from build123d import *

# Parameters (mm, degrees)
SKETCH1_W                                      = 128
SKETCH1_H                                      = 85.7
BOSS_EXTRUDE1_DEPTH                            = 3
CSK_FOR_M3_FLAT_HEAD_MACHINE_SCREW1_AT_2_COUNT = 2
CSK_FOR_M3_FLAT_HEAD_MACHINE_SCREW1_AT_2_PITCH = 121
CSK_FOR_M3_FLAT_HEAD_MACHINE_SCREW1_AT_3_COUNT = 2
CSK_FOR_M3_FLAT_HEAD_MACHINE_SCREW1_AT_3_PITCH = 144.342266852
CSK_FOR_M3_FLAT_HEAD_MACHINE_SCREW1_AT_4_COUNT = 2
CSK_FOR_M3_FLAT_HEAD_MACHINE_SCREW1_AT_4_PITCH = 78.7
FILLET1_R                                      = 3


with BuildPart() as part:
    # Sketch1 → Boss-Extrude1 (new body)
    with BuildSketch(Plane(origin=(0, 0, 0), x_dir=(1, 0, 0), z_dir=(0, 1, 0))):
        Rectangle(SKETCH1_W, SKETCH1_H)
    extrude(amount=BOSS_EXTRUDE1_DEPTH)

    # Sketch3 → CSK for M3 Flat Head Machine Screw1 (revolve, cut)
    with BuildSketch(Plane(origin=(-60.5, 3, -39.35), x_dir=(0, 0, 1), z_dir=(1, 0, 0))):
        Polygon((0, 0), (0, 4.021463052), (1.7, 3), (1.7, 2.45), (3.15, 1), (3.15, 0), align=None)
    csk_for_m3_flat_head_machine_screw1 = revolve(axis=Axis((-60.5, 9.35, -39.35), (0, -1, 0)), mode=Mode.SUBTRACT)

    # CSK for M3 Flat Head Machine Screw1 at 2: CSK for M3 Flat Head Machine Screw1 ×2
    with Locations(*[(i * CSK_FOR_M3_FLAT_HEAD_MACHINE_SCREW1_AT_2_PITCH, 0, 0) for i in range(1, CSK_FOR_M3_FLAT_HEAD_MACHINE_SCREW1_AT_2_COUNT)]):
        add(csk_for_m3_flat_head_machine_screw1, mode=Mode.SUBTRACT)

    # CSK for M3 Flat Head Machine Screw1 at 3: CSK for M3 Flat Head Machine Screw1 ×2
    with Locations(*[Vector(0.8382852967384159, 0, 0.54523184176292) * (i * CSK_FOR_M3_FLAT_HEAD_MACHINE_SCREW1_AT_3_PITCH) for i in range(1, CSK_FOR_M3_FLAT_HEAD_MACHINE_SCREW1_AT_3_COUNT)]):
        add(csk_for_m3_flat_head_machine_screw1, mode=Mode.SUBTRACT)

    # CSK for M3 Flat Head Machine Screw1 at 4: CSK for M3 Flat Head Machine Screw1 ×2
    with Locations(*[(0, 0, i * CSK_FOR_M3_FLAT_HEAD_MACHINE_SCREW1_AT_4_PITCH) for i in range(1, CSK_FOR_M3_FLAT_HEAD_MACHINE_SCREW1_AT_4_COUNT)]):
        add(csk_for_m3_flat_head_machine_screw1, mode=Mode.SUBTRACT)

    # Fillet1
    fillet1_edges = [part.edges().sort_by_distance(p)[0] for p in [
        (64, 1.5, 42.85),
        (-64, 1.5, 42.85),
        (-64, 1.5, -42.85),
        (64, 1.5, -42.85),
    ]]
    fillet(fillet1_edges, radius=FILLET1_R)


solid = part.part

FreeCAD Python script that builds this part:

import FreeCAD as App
import Part
import Sketcher

V = App.Vector
Q = App.Units.Quantity


def edges_at(feature, points):
    """Names of the edges that pass closest to the given points."""
    edges = feature.Shape.Edges
    near = lambda p: min(range(len(edges)), key=lambda i: edges[i].distToShape(Part.Vertex(*p))[0])
    return sorted({f"Edge{near(p) + 1}" for p in points})

doc = App.newDocument("Part")
params = doc.addObject("Spreadsheet::Sheet", "Params")
for row, (alias, value) in enumerate([
    ("sketch1_width", "128 mm"),
    ("sketch1_height", "85.7 mm"),
    ("pad1_length", "3 mm"),
    ("sketch2_width", "1 mm"),
    ("sketch2_width2", "0.55 mm"),
    ("sketch2_height", "3.15 mm"),
    ("groove_angle", "360 deg"),
    ("linearpattern_pitch", "121 mm"),
    ("linearpattern2_pitch", "144.342267 mm"),
    ("linearpattern3_pitch", "78.7 mm"),
    ("fillet_radius", "3 mm"),
], start=1):
    params.set(f"A{row}", alias)
    params.set(f"B{row}", "=" + value)
    params.setAlias(f"B{row}", alias)

body = doc.addObject("PartDesign::Body", "Body")

sketch1 = doc.addObject("Sketcher::SketchObject", "Sketch")
body.addObject(sketch1)
sketch1.AttachmentSupport = (doc.XZ_Plane, [""])
sketch1.MapMode = "FlatFace"
sketch1.addGeometry([
    Part.LineSegment(V(-64, -43, 0), V(-64, 43, 0)),
    Part.LineSegment(V(-64, 43, 0), V(64, 43, 0)),
    Part.LineSegment(V(64, 43, 0), V(64, -43, 0)),
    Part.LineSegment(V(64, -43, 0), V(-64, -43, 0)),
], False)
sketch1.addConstraint([
    Sketcher.Constraint("Coincident", 0, 2, 1, 1),
    Sketcher.Constraint("Coincident", 1, 2, 2, 1),
    Sketcher.Constraint("Coincident", 2, 2, 3, 1),
    Sketcher.Constraint("Coincident", 3, 2, 0, 1),
    Sketcher.Constraint("Vertical", 0),
    Sketcher.Constraint("Horizontal", 1),
    Sketcher.Constraint("Vertical", 2),
    Sketcher.Constraint("Horizontal", 3),
    Sketcher.Constraint("Symmetric", 0, 2, 2, 2, -1, 1),
    Sketcher.Constraint("DistanceX", 1, 1, 1, 2, Q("128 mm")),
    Sketcher.Constraint("DistanceY", 0, 1, 0, 2, Q("85.7 mm")),
])
sketch1.setExpression("Constraints[9]", "Params.sketch1_width")
sketch1.setExpression("Constraints[10]", "Params.sketch1_height")
pad1 = doc.addObject("PartDesign::Pad", "Pad")
body.addObject(pad1)
pad1.Profile = sketch1
pad1.setExpression("Length", "Params.pad1_length")
pad1.Reversed = True

sketch2 = doc.addObject("Sketcher::SketchObject", "Sketch001")
body.addObject(sketch2)
sketch2.AttachmentSupport = (doc.YZ_Plane, [""])
sketch2.MapMode = "FlatFace"
sketch2.AttachmentOffset = App.Placement(V(0, 0, -60.5), App.Rotation())
sketch2.addGeometry([
    Part.LineSegment(V(-1, -39.4, 0), V(3, -39.4, 0)),
    Part.LineSegment(V(3, -39.4, 0), V(3, -36.2, 0)),
    Part.LineSegment(V(3, -36.2, 0), V(2, -36.2, 0)),
    Part.LineSegment(V(2, -36.2, 0), V(0.6, -37.6, 0)),
    Part.LineSegment(V(0.6, -37.6, 0), V(0, -37.6, 0)),
    Part.LineSegment(V(0, -37.6, 0), V(-1, -39.4, 0)),
], False)
sketch2.addGeometry(Part.LineSegment(V(3, -39.4, 0), V(-1, -39.4, 0)), True)
sketch2.addConstraint([
    Sketcher.Constraint("Coincident", 0, 2, 1, 1),
    Sketcher.Constraint("Coincident", 1, 2, 2, 1),
    Sketcher.Constraint("Coincident", 2, 2, 3, 1),
    Sketcher.Constraint("Coincident", 3, 2, 4, 1),
    Sketcher.Constraint("Coincident", 4, 2, 5, 1),
    Sketcher.Constraint("Coincident", 5, 2, 0, 1),
    Sketcher.Constraint("Horizontal", 0),
    Sketcher.Constraint("Vertical", 1),
    Sketcher.Constraint("Horizontal", 2),
    Sketcher.Constraint("Horizontal", 4),
    Sketcher.Constraint("Horizontal", 6),
    Sketcher.Constraint("Coincident", 6, 1, 0, 2),
    Sketcher.Constraint("PointOnObject", 4, 2, -2),
    Sketcher.Constraint("Equal", 0, 6),
    Sketcher.Constraint("DistanceX", 2, 2, 2, 1, Q("1 mm")),
    Sketcher.Constraint("Angle", 3, Q("-135 deg")),
    Sketcher.Constraint("Angle", 5, Q("-121 deg")),
    Sketcher.Constraint("DistanceX", -1, 1, 0, 2, Q("3 mm")),
    Sketcher.Constraint("DistanceX", 4, 2, 4, 1, Q("0.55 mm")),
    Sketcher.Constraint("DistanceY", 1, 1, 1, 2, Q("3.15 mm")),
    Sketcher.Constraint("DistanceY", 1, 2, -1, 1, Q("36.2 mm")),
])
sketch2.setExpression("Constraints[14]", "Params.sketch2_width")
sketch2.setExpression("Constraints[18]", "Params.sketch2_width2")
sketch2.setExpression("Constraints[19]", "Params.sketch2_height")
groove = doc.addObject("PartDesign::Groove", "Groove")
body.addObject(groove)
groove.Profile = sketch2
groove.ReferenceAxis = (sketch2, ["Axis0"])
groove.setExpression("Angle", "Params.groove_angle")
doc.recompute()

linearpattern = doc.addObject("PartDesign::LinearPattern", "LinearPattern")
body.addObject(linearpattern)
linearpattern.Originals = [groove]
linearpattern.Direction = (doc.X_Axis, [""])
linearpattern.Mode = "offset"
linearpattern.setExpression("Offset", "Params.linearpattern_pitch")
linearpattern.Occurrences = 2
body.Tip = linearpattern
doc.recompute()

datumline = doc.addObject("PartDesign::Line", "DatumLine")
body.addObject(datumline)
datumline.Placement = App.Placement(V(0, 0, 0), App.Rotation(V(0, 0, 1), V(0.838285297, 0, 0.545231842)))
linearpattern2 = doc.addObject("PartDesign::LinearPattern", "LinearPattern001")
body.addObject(linearpattern2)
linearpattern2.Originals = [groove]
linearpattern2.Direction = (datumline, [""])
linearpattern2.Mode = "offset"
linearpattern2.setExpression("Offset", "Params.linearpattern2_pitch")
linearpattern2.Occurrences = 2
body.Tip = linearpattern2
doc.recompute()

linearpattern3 = doc.addObject("PartDesign::LinearPattern", "LinearPattern002")
body.addObject(linearpattern3)
linearpattern3.Originals = [groove]
linearpattern3.Direction = (doc.Z_Axis, [""])
linearpattern3.Mode = "offset"
linearpattern3.setExpression("Offset", "Params.linearpattern3_pitch")
linearpattern3.Occurrences = 2
body.Tip = linearpattern3
doc.recompute()

fillet = doc.addObject("PartDesign::Fillet", "Fillet")
body.addObject(fillet)
fillet.Base = (linearpattern3, edges_at(linearpattern3, [
    (64, 1.5, 42.85),
    (-64, 1.5, 42.85),
    (-64, 1.5, -42.85),
    (64, 1.5, -42.85),
]))
fillet.setExpression("Radius", "Params.fillet_radius")

doc.recompute()
